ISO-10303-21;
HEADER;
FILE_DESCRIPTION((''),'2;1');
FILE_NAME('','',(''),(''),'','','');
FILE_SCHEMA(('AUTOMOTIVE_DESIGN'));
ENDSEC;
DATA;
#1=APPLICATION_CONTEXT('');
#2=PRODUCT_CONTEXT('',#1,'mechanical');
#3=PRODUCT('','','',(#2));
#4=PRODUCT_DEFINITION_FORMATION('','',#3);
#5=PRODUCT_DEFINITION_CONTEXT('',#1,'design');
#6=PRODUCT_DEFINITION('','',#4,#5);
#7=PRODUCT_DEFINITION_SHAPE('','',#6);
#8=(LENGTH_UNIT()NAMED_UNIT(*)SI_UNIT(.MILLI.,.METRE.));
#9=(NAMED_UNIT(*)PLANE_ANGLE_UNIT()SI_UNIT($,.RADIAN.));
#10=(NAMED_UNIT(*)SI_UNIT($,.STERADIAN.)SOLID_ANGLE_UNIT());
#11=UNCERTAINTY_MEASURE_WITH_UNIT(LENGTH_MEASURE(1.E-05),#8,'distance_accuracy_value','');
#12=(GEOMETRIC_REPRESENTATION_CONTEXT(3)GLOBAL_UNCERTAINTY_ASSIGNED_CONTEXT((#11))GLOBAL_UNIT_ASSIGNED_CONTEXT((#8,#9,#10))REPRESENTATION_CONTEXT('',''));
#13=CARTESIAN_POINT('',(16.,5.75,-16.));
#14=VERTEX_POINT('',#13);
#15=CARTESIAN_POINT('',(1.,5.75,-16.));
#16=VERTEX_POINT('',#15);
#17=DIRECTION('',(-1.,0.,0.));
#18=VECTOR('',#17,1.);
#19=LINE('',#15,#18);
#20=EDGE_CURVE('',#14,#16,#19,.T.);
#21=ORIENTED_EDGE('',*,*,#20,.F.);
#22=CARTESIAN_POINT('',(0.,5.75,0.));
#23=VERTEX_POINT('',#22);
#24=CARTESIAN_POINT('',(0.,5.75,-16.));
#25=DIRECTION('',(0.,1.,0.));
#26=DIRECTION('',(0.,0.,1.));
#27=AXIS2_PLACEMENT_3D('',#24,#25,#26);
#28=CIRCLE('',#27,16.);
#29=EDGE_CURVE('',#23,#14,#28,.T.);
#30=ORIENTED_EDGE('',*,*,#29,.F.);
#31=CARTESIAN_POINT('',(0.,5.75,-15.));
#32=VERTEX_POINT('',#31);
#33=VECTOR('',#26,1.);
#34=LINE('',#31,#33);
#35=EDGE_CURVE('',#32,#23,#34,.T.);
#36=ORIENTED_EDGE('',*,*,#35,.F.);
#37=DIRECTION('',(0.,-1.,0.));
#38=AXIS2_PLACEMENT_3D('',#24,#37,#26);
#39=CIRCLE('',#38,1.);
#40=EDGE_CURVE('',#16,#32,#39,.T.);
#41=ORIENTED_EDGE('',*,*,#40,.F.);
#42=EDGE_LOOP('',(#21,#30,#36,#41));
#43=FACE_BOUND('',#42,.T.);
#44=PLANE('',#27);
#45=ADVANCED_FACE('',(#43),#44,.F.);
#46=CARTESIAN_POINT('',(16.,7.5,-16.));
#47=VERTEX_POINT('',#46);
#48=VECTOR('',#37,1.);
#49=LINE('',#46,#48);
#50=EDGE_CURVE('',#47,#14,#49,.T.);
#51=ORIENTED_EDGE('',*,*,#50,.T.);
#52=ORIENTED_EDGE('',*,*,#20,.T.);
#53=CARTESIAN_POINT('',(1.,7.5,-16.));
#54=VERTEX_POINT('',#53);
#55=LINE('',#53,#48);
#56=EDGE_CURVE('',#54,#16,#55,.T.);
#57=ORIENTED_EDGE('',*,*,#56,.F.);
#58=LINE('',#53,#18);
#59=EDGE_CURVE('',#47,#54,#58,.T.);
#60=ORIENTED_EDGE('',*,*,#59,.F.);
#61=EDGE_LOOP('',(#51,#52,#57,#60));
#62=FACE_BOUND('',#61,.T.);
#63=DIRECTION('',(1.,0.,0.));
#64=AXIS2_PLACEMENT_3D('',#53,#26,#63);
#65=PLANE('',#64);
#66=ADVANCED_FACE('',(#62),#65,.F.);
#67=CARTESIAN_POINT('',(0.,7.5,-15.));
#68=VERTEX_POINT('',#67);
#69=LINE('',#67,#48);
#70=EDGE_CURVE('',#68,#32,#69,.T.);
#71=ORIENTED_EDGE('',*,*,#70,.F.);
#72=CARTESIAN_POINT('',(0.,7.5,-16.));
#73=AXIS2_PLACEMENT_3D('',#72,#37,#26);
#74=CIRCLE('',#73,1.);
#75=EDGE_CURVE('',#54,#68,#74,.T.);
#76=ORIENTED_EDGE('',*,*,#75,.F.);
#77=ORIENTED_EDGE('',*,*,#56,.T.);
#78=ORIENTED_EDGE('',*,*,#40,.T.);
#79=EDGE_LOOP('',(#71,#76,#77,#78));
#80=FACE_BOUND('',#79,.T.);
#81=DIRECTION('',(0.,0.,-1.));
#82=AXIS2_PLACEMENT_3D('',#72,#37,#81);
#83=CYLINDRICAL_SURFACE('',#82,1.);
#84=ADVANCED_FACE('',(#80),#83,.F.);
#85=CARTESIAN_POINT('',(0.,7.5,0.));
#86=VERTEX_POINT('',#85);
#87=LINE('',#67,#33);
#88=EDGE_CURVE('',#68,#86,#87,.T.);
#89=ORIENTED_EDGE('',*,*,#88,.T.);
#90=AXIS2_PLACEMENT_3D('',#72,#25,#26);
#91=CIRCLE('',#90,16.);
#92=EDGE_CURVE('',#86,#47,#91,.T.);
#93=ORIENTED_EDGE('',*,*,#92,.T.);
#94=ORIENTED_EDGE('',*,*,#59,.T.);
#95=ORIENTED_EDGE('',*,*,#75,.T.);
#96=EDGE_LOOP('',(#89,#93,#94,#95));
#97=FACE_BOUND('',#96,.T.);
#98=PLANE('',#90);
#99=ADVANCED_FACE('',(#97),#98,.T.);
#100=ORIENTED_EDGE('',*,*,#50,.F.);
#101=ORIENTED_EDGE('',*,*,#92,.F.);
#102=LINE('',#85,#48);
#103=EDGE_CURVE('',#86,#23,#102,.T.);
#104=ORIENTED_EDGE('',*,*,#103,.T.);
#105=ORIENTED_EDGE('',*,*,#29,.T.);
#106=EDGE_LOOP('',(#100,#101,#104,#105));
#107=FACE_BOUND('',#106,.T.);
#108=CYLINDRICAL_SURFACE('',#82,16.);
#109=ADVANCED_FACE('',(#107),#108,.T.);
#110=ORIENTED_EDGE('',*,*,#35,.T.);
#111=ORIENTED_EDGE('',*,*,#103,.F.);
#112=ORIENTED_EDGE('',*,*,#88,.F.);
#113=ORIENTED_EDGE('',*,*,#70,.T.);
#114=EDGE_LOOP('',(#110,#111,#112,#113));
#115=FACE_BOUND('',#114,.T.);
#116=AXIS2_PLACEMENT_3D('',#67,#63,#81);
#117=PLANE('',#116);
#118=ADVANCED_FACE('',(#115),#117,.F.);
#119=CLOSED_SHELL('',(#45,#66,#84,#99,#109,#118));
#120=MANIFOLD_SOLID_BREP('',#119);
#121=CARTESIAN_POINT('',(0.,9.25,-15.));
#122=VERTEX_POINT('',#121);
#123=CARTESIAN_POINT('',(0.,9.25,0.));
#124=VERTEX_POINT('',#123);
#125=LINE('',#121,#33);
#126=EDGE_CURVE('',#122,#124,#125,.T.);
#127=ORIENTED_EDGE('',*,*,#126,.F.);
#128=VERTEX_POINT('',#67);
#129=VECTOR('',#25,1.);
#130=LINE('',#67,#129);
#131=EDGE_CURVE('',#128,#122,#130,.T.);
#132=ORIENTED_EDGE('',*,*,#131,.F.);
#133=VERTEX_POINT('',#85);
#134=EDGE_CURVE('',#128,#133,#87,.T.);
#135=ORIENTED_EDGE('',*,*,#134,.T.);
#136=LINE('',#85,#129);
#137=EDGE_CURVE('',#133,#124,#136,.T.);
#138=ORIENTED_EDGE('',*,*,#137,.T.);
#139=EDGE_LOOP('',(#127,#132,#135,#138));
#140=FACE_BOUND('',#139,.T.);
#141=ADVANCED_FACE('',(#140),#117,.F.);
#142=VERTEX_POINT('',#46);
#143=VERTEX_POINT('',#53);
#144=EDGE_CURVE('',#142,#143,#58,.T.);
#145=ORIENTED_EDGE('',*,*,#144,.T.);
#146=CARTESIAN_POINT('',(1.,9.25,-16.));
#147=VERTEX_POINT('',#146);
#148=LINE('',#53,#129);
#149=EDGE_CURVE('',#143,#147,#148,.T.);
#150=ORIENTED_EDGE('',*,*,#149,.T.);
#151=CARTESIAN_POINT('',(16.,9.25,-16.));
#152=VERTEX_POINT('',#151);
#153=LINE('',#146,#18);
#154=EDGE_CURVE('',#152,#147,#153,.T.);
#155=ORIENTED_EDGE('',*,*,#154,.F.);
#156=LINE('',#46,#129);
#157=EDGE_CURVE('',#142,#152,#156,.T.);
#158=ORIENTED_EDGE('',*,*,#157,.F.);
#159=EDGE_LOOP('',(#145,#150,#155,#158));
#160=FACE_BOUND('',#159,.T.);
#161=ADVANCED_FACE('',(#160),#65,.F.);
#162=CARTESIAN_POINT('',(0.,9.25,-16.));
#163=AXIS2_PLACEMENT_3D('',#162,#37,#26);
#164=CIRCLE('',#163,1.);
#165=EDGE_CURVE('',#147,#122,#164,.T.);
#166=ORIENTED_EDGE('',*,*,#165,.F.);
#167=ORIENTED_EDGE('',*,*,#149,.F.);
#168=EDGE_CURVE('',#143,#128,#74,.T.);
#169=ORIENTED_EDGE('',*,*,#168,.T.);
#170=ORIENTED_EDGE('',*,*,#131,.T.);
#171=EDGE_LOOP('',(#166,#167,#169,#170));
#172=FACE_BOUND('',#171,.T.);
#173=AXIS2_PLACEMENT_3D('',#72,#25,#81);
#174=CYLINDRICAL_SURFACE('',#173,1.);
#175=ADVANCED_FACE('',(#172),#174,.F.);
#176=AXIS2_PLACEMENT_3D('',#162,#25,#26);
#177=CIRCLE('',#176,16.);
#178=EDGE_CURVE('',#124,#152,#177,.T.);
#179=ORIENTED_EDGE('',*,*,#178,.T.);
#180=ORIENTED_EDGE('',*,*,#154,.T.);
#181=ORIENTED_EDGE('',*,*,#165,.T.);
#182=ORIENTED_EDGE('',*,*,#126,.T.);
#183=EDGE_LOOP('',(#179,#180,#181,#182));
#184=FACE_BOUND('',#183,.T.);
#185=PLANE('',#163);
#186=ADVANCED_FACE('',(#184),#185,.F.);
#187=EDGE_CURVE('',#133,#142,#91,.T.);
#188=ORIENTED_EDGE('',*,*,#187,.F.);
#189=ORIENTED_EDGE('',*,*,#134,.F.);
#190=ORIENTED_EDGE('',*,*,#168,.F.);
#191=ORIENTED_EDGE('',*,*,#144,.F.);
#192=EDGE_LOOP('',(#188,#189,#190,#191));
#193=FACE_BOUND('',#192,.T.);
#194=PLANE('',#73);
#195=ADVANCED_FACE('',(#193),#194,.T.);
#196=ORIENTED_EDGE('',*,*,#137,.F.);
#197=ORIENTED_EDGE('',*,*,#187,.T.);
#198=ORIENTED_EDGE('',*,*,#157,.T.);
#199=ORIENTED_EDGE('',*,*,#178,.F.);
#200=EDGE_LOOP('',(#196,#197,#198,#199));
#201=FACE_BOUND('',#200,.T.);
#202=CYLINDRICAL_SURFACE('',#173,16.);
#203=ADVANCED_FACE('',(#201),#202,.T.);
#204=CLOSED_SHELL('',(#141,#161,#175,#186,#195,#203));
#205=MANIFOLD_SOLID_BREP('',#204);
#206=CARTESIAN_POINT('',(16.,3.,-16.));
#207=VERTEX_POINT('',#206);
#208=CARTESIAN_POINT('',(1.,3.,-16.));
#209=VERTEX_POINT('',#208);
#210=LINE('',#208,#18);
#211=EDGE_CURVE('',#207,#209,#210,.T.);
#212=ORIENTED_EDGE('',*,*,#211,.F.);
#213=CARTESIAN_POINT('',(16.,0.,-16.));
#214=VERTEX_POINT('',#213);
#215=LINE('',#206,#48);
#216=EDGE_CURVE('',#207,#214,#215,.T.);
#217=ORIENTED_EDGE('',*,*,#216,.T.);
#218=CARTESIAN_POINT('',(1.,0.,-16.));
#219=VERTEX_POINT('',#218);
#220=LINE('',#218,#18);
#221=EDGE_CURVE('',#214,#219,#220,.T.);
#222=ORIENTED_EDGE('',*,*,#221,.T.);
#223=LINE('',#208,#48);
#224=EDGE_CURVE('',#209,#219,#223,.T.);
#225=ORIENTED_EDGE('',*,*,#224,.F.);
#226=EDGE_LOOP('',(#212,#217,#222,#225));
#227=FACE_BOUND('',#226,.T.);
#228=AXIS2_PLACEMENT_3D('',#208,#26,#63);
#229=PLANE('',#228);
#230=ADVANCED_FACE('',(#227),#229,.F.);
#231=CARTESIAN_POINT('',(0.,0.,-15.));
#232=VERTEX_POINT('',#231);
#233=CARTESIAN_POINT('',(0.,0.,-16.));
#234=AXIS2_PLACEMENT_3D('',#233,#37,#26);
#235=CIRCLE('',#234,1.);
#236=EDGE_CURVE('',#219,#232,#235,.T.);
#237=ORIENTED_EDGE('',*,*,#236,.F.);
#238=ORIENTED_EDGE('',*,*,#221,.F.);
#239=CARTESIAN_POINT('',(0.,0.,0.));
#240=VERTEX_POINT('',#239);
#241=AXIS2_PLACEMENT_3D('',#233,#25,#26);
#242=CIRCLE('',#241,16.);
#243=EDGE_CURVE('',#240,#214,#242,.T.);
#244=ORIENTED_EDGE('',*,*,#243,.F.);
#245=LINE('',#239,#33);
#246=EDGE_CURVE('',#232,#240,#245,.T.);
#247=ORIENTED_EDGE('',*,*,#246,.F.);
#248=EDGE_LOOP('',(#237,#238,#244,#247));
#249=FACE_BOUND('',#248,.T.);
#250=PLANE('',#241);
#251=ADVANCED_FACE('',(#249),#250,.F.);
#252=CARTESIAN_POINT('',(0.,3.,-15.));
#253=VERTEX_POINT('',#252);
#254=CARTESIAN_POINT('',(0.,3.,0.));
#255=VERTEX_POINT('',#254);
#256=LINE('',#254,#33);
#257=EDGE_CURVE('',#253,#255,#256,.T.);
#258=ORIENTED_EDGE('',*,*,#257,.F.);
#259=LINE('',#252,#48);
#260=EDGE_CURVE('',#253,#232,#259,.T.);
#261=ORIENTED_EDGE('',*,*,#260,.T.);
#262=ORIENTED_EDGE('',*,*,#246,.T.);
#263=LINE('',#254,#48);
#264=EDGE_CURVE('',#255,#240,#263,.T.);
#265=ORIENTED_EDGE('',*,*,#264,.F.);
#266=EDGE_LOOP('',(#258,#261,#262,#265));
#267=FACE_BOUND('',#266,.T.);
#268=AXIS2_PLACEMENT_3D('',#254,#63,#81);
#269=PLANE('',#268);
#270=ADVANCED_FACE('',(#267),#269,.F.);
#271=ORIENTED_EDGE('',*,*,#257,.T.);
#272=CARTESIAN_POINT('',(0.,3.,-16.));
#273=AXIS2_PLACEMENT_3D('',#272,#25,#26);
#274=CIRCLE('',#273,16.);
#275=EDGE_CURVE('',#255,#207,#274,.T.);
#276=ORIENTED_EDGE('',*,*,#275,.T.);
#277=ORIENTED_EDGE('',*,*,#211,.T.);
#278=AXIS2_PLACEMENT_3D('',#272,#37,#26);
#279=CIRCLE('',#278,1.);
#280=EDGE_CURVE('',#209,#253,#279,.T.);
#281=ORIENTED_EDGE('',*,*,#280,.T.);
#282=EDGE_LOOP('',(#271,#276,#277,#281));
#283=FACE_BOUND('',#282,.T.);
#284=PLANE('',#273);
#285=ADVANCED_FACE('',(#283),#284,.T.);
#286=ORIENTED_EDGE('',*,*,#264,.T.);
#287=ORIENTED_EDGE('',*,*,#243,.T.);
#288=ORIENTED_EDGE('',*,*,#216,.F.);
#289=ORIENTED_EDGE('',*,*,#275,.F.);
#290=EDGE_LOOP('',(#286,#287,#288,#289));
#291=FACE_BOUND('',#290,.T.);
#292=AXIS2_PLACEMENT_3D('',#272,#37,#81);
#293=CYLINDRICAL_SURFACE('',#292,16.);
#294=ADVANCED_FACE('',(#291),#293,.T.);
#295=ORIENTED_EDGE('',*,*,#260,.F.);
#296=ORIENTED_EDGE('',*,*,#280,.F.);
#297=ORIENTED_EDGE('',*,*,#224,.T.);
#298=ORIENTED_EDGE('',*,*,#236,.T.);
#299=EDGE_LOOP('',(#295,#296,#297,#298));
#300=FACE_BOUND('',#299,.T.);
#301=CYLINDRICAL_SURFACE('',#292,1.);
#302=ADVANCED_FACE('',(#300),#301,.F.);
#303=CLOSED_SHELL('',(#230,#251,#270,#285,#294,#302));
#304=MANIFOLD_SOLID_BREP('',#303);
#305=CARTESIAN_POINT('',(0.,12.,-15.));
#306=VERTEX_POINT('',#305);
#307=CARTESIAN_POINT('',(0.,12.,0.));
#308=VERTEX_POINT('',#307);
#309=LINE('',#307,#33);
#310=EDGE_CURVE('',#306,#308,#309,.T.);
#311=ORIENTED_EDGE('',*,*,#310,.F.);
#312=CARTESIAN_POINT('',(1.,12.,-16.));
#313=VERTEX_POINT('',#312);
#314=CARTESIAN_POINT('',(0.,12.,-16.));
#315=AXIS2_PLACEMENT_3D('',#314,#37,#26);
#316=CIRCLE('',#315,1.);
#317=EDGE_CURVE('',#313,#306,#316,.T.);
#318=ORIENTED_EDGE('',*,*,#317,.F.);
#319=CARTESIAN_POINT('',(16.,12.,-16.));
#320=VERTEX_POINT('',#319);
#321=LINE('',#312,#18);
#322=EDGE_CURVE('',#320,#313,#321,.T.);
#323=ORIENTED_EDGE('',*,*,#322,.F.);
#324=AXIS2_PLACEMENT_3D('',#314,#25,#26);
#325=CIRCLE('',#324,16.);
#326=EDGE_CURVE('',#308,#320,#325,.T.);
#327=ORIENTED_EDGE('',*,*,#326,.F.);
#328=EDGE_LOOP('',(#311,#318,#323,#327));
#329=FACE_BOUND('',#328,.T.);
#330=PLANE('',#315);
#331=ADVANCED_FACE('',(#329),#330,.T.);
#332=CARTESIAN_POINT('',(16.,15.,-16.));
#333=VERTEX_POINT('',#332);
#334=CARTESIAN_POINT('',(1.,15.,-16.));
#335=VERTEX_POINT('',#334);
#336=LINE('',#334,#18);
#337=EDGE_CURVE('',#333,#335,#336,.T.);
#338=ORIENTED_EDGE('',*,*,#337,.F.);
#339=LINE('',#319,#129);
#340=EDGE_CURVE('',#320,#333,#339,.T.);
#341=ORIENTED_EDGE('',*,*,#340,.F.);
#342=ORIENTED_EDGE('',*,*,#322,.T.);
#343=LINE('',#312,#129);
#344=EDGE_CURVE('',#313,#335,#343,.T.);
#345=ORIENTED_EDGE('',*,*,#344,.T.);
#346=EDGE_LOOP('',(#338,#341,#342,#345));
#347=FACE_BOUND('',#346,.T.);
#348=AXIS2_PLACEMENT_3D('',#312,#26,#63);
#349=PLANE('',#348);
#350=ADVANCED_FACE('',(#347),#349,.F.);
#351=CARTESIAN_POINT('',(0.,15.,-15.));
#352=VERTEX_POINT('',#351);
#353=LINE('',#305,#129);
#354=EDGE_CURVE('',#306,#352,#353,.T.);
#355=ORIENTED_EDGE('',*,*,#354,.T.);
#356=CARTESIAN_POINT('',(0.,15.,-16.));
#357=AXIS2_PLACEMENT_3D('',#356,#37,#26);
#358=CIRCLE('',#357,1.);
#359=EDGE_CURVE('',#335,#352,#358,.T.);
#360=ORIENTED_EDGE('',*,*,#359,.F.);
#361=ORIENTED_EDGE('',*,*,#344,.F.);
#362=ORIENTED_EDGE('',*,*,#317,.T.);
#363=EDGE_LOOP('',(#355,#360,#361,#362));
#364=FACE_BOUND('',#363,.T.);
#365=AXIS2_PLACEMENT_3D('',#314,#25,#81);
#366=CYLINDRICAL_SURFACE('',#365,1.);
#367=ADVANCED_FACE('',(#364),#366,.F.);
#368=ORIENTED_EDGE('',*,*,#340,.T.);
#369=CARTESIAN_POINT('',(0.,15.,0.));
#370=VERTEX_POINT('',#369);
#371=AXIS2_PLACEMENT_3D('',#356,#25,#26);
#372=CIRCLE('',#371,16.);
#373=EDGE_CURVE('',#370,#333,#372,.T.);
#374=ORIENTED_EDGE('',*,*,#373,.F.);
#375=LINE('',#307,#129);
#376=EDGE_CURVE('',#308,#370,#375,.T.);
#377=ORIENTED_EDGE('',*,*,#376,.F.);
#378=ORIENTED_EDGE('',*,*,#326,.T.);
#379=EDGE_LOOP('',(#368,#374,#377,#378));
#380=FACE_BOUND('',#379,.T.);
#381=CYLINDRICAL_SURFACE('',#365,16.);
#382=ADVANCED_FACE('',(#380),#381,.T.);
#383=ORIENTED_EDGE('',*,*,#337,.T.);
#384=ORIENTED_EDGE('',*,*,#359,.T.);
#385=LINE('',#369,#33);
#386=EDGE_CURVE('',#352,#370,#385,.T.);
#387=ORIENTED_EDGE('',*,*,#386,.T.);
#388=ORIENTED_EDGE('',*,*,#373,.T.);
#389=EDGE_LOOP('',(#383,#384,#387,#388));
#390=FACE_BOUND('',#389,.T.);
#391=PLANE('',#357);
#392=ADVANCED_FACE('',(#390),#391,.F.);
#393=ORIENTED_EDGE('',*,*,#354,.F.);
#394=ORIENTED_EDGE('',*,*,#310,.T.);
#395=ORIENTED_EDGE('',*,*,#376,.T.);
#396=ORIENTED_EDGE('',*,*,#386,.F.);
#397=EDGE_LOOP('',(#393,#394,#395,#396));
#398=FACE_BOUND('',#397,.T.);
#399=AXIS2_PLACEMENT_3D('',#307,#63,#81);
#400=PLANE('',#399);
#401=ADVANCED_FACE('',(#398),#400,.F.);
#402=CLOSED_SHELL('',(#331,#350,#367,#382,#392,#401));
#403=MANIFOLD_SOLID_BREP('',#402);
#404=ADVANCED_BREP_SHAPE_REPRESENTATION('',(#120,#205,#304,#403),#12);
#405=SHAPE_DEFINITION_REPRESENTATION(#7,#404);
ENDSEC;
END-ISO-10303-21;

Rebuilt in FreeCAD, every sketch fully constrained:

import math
import FreeCAD as App
import Part
import Sketcher
Q = App.Units.Quantity

doc = App.newDocument("Part")
body = doc.addObject("PartDesign::Body", "Body")

# Sketch on XZ plane
sketch1 = body.newObject("Sketcher::SketchObject", "Sketch")
sketch1.AttachmentSupport = (doc.getObject("XZ_Plane"), [""])
sketch1.MapMode = "FlatFace"
sketch1.addGeometry([
    Part.LineSegment(App.Vector(0, -15, 0), App.Vector(0, 0, 0)),
    Part.ArcOfCircle(Part.Circle(App.Vector(0, -16, 0), App.Vector(0, 0, 1), 16), math.radians(0), math.radians(90)),
    Part.LineSegment(App.Vector(16, -16, 0), App.Vector(1, -16, 0)),
    Part.ArcOfCircle(Part.Circle(App.Vector(0, -16, 0), App.Vector(0, 0, 1), 1), math.radians(0), math.radians(90)),
], False)
sketch1.addConstraint([
    Sketcher.Constraint("Coincident", 0, 2, 1, 2),
    Sketcher.Constraint("Coincident", 1, 1, 2, 1),
    Sketcher.Constraint("Coincident", 2, 2, 3, 1),
    Sketcher.Constraint("Coincident", 3, 2, 0, 1),
    Sketcher.Constraint("Vertical", 0),
    Sketcher.Constraint("Horizontal", 2),
    Sketcher.Constraint("Coincident", 0, 2, -1, 1),
    Sketcher.Constraint("Coincident", 3, 3, 1, 3),
    Sketcher.Constraint("PointOnObject", 1, 3, -2),
    Sketcher.Constraint("Horizontal", 3, 3, 1, 1),
    Sketcher.Constraint("Radius", 1, Q("16 mm")),
    Sketcher.Constraint("Radius", 3, Q("1 mm")),
])
pad1 = body.newObject("PartDesign::Pad", "Pad")
pad1.Profile = sketch1
pad1.Length = 3
pad1.Reversed = True
body2 = doc.addObject("PartDesign::Body", "Body001")

# Sketch on XZ plane
sketch2 = body2.newObject("Sketcher::SketchObject", "Sketch001")
sketch2.AttachmentSupport = (doc.getObject("XZ_Plane001"), [""])
sketch2.MapMode = "FlatFace"
sketch2.AttachmentOffset = App.Placement(App.Vector(0, 0, -5.75), App.Rotation())
sketch2.addGeometry([
    Part.LineSegment(App.Vector(16, -16, 0), App.Vector(1, -16, 0)),
    Part.ArcOfCircle(Part.Circle(App.Vector(0, -16, 0), App.Vector(0, 0, 1), 1), math.radians(0), math.radians(90)),
    Part.LineSegment(App.Vector(0, -15, 0), App.Vector(0, 0, 0)),
    Part.ArcOfCircle(Part.Circle(App.Vector(0, -16, 0), App.Vector(0, 0, 1), 16), math.radians(0), math.radians(90)),
], False)
sketch2.addConstraint([
    Sketcher.Constraint("Coincident", 0, 2, 1, 1),
    Sketcher.Constraint("Coincident", 1, 2, 2, 1),
    Sketcher.Constraint("Coincident", 2, 2, 3, 2),
    Sketcher.Constraint("Coincident", 3, 1, 0, 1),
    Sketcher.Constraint("Horizontal", 0),
    Sketcher.Constraint("Vertical", 2),
    Sketcher.Constraint("Coincident", 2, 2, -1, 1),
    Sketcher.Constraint("Coincident", 3, 3, 1, 3),
    Sketcher.Constraint("PointOnObject", 1, 3, -2),
    Sketcher.Constraint("Horizontal", 3, 3, 0, 2),
    Sketcher.Constraint("Radius", 1, Q("1 mm")),
    Sketcher.Constraint("Radius", 3, Q("16 mm")),
])
pad2 = body2.newObject("PartDesign::Pad", "Pad001")
pad2.Profile = sketch2
pad2.Length = 1.75
pad2.Reversed = True
body3 = doc.addObject("PartDesign::Body", "Body002")
doc.recompute()

mirroring = doc.addObject("Part::Mirroring", "Mirroring")
mirroring.Source = body
mirroring.Base = App.Vector(0, 7.5, -16)
mirroring.Normal = App.Vector(0, 1, 0)
body3.BaseFeature = mirroring
doc.recompute()
body4 = doc.addObject("PartDesign::Body", "Body003")
doc.recompute()

mirroring2 = doc.addObject("Part::Mirroring", "Mirroring001")
mirroring2.Source = body2
mirroring2.Base = App.Vector(0, 7.5, -16)
mirroring2.Normal = App.Vector(0, 1, 0)
body4.BaseFeature = mirroring2
doc.recompute()
mirroring.Visibility = False
mirroring2.Visibility = False

doc.recompute()
